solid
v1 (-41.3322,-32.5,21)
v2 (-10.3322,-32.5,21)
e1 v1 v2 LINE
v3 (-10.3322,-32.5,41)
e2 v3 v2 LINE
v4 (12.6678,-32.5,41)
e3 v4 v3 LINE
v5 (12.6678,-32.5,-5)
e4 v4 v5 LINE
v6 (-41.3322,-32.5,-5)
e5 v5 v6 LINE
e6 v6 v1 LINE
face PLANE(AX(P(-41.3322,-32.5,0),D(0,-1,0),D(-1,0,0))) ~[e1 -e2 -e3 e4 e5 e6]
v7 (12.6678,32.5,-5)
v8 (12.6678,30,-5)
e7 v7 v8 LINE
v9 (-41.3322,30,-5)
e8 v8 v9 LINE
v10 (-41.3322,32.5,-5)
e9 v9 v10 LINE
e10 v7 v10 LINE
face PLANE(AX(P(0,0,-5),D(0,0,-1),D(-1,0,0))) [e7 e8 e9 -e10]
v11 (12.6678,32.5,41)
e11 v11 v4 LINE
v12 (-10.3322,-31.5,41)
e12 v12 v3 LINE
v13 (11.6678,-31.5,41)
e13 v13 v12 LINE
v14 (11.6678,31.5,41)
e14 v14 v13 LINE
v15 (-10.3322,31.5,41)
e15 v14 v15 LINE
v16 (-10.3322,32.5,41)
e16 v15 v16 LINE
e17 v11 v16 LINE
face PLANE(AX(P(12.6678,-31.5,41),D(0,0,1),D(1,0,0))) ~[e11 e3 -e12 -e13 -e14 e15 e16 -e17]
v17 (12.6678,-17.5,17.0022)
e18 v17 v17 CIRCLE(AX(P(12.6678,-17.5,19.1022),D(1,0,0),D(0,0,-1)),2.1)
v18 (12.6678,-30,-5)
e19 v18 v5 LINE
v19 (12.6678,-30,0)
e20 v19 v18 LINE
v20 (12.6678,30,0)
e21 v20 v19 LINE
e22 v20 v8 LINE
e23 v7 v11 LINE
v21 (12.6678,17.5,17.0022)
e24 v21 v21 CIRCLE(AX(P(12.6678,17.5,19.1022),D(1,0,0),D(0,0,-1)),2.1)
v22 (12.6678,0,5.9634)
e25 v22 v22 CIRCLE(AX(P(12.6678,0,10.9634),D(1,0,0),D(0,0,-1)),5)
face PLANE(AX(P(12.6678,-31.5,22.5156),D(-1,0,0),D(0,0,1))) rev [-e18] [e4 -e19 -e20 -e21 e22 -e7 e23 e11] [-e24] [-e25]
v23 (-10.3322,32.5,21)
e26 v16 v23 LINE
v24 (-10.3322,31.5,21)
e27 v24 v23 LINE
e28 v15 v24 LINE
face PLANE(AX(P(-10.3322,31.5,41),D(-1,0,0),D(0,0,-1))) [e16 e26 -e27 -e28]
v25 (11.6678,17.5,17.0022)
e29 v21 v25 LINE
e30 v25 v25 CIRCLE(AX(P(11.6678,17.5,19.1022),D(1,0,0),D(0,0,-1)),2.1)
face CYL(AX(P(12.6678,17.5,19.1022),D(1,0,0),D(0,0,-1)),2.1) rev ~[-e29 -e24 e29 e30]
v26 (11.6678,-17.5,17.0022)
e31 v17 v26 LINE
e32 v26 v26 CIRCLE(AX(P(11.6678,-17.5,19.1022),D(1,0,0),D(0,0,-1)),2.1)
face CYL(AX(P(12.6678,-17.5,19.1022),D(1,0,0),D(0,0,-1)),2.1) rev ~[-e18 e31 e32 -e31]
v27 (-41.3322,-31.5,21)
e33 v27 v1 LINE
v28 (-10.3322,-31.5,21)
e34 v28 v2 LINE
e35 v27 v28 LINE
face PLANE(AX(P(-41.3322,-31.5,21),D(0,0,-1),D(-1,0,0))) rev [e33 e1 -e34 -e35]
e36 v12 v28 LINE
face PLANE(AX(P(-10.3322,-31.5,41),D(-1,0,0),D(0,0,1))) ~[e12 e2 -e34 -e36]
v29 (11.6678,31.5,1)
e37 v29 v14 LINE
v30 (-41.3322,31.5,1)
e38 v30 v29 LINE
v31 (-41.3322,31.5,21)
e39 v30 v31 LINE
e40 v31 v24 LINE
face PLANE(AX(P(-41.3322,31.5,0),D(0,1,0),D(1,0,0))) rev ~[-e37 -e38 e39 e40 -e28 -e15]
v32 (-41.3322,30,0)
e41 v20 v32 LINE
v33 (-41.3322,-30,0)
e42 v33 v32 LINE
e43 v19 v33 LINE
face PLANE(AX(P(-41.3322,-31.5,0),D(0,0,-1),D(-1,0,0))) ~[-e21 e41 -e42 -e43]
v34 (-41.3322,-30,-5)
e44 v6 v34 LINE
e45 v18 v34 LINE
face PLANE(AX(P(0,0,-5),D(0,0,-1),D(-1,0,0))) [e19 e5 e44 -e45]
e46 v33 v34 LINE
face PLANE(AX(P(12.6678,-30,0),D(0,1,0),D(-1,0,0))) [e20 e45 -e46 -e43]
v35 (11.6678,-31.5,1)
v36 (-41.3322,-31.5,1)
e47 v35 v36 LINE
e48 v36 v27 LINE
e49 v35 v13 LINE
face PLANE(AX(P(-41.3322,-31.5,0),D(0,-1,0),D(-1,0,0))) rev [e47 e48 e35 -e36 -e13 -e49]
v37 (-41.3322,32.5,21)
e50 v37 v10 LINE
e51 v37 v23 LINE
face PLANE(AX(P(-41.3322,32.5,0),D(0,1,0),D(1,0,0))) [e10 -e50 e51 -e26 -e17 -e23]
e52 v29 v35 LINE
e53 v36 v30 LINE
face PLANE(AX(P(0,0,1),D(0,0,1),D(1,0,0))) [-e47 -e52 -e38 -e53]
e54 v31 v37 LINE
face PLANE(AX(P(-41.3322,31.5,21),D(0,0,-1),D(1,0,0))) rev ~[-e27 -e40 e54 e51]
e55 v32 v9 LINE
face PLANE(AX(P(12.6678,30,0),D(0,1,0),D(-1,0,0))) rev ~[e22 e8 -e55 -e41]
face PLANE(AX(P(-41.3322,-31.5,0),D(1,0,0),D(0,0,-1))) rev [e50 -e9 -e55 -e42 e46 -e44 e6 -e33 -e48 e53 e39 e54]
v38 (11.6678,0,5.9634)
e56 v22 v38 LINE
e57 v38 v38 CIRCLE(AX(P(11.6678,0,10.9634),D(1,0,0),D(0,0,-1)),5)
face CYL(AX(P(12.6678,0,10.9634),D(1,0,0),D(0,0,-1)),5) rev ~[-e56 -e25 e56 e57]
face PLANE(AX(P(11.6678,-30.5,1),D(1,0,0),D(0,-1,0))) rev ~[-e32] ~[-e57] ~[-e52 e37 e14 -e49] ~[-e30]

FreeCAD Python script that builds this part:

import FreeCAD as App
import Part
import Sketcher

V = App.Vector
Q = App.Units.Quantity

doc = App.newDocument("Part")
body = doc.addObject("PartDesign::Body", "Body")

# Sketch on XY plane
sketch1 = body.newObject("Sketcher::SketchObject", "Sketch")
sketch1.AttachmentSupport = (doc.getObject("XY_Plane"), [""])
sketch1.MapMode = "FlatFace"
sketch1.addGeometry([
    Part.LineSegment(V(13, 32, 0), V(-41, 32, 0)),
    Part.LineSegment(V(-41, 32, 0), V(-41, -32, 0)),
    Part.LineSegment(V(-41, -32, 0), V(13, -32, 0)),
    Part.LineSegment(V(13, -32, 0), V(13, 32, 0)),
], False)
sketch1.addConstraint([
    Sketcher.Constraint("Coincident", 0, 2, 1, 1),
    Sketcher.Constraint("Coincident", 1, 2, 2, 1),
    Sketcher.Constraint("Coincident", 2, 2, 3, 1),
    Sketcher.Constraint("Coincident", 3, 2, 0, 1),
    Sketcher.Constraint("Horizontal", 0),
    Sketcher.Constraint("Vertical", 1),
    Sketcher.Constraint("Horizontal", 2),
    Sketcher.Constraint("Vertical", 3),
    Sketcher.Constraint("DistanceX", 0, 2, 0, 1, Q("54 mm")),
    Sketcher.Constraint("DistanceY", 1, 2, 1, 1, Q("63 mm")),
    Sketcher.Constraint("DistanceY", -1, 1, 0, 2, Q("31.5 mm")),
    Sketcher.Constraint("DistanceX", 0, 2, -1, 1, Q("41.3322 mm")),
])
pad1 = body.newObject("PartDesign::Pad", "Pad")
pad1.Profile = sketch1
pad1.Length = 1

# Sketch on XY plane
sketch2 = body.newObject("Sketcher::SketchObject", "Sketch001")
sketch2.AttachmentSupport = (doc.getObject("XY_Plane"), [""])
sketch2.MapMode = "FlatFace"
sketch2.AttachmentOffset = App.Placement(V(0, 0, 1), App.Rotation())
sketch2.addGeometry([
    Part.LineSegment(V(12.7, -31.5, 0), V(12.7, 31.5, 0)),
    Part.LineSegment(V(12.7, 31.5, 0), V(11.7, 31.5, 0)),
    Part.LineSegment(V(11.7, 31.5, 0), V(11.7, -31.5, 0)),
    Part.LineSegment(V(11.7, -31.5, 0), V(12.7, -31.5, 0)),
], False)
sketch2.addConstraint([
    Sketcher.Constraint("Coincident", 0, 2, 1, 1),
    Sketcher.Constraint("Coincident", 1, 2, 2, 1),
    Sketcher.Constraint("Coincident", 2, 2, 3, 1),
    Sketcher.Constraint("Coincident", 3, 2, 0, 1),
    Sketcher.Constraint("Vertical", 0),
    Sketcher.Constraint("Horizontal", 1),
    Sketcher.Constraint("Vertical", 2),
    Sketcher.Constraint("Horizontal", 3),
    Sketcher.Constraint("DistanceX", 1, 2, 1, 1, Q("1 mm")),
    Sketcher.Constraint("DistanceY", 0, 1, 0, 2, Q("63 mm")),
    Sketcher.Constraint("DistanceY", -1, 1, 0, 2, Q("31.5 mm")),
    Sketcher.Constraint("DistanceX", -1, 1, 0, 2, Q("12.6678 mm")),
])
pad2 = body.newObject("PartDesign::Pad", "Pad001")
pad2.Profile = sketch2
pad2.Length = 40

# Sketch on YZ plane
sketch3 = body.newObject("Sketcher::SketchObject", "Sketch002")
sketch3.AttachmentSupport = (doc.getObject("YZ_Plane"), [""])
sketch3.MapMode = "FlatFace"
sketch3.AttachmentOffset = App.Placement(V(0, 0, 12.6678), App.Rotation())
sketch3.addGeometry([
    Part.Circle(V(0, 11, 0), V(0, 0, 1), 5),
    Part.Circle(V(17.5, 19.1, 0), V(0, 0, 1), 2.1),
    Part.Circle(V(-17.5, 19.1, 0), V(0, 0, 1), 2.1),
], False)
sketch3.addConstraint([
    Sketcher.Constraint("Equal", 1, 2),
    Sketcher.Constraint("Symmetric", 1, 3, 2, 3, -2),
    Sketcher.Constraint("PointOnObject", 0, 3, -2),
    Sketcher.Constraint("Diameter", 0, Q("10 mm")),
    Sketcher.Constraint("Diameter", 1, Q("4.2 mm")),
    Sketcher.Constraint("DistanceX", 2, 3, 1, 3, Q("35 mm")),
    Sketcher.Constraint("DistanceY", -1, 1, 0, 3, Q("10.9634 mm")),
    Sketcher.Constraint("DistanceY", -1, 1, 1, 3, Q("19.1022 mm")),
])
pocket1 = body.newObject("PartDesign::Pocket", "Pocket")
pocket1.Profile = sketch3
pocket1.Type = "UpToFirst"

# Sketch on XZ plane
sketch4 = body.newObject("Sketcher::SketchObject", "Sketch003")
sketch4.AttachmentSupport = (doc.getObject("XZ_Plane"), [""])
sketch4.MapMode = "FlatFace"
sketch4.AttachmentOffset = App.Placement(V(0, 0, -31.5), App.Rotation())
sketch4.addGeometry([
    Part.LineSegment(V(13, 0, 0), V(-41, 0, 0)),  # 0
    Part.LineSegment(V(-41, 0, 0), V(-41, 21, 0)),  # 1
    Part.LineSegment(V(-41, 21, 0), V(-10, 21, 0)),  # 2
    Part.LineSegment(V(-10, 21, 0), V(-10, 41, 0)),  # 3
    Part.LineSegment(V(-10, 41, 0), V(13, 41, 0)),  # 4
    Part.LineSegment(V(13, 41, 0), V(13, 0, 0)),  # 5
], False)
sketch4.addConstraint([
    Sketcher.Constraint("Coincident", 0, 2, 1, 1),
    Sketcher.Constraint("Coincident", 1, 2, 2, 1),
    Sketcher.Constraint("Coincident", 2, 2, 3, 1),
    Sketcher.Constraint("Coincident", 3, 2, 4, 1),
    Sketcher.Constraint("Coincident", 4, 2, 5, 1),
    Sketcher.Constraint("Coincident", 5, 2, 0, 1),
    Sketcher.Constraint("Horizontal", 0),
    Sketcher.Constraint("Vertical", 1),
    Sketcher.Constraint("Horizontal", 2),
    Sketcher.Constraint("Vertical", 3),
    Sketcher.Constraint("Horizontal", 4),
    Sketcher.Constraint("Vertical", 5),
    Sketcher.Constraint("PointOnObject", 0, 2, -1),
    Sketcher.Constraint("DistanceX", 4, 1, 4, 2, Q("23 mm")),
    Sketcher.Constraint("DistanceY", 3, 1, 3, 2, Q("20 mm")),
    Sketcher.Constraint("DistanceX", 0, 2, 0, 1, Q("54 mm")),
    Sketcher.Constraint("DistanceY", 1, 1, 1, 2, Q("21 mm")),
    Sketcher.Constraint("DistanceX", 0, 2, -1, 1, Q("41.3322 mm")),
])
pad3 = body.newObject("PartDesign::Pad", "Pad002")
pad3.Profile = sketch4
pad3.Length = 1
pad3.Reversed = True
doc.recompute()

mirrored = body.newObject("PartDesign::Mirrored", "Mirrored")
mirrored.Originals = [pad3]
mirrored.MirrorPlane = (doc.getObject("XZ_Plane"), [""])
body.Tip = mirrored

# Sketch on XY plane
sketch5 = body.newObject("Sketcher::SketchObject", "Sketch004")
sketch5.AttachmentSupport = (doc.getObject("XY_Plane"), [""])
sketch5.MapMode = "FlatFace"
sketch5.addGeometry([
    Part.LineSegment(V(12.7, 32.5, 0), V(12.7, 30, 0)),  # 0
    Part.LineSegment(V(12.7, 30, 0), V(-41.3, 30, 0)),  # 1
    Part.LineSegment(V(-41.3, 30, 0), V(-41.3, 32.5, 0)),  # 2
    Part.LineSegment(V(-41.3, 32.5, 0), V(12.7, 32.5, 0)),  # 3
    Part.LineSegment(V(-41.3, -30, 0), V(12.7, -30, 0)),  # 4
    Part.LineSegment(V(12.7, -30, 0), V(12.7, -32.5, 0)),  # 5
    Part.LineSegment(V(12.7, -32.5, 0), V(-41.3, -32.5, 0)),  # 6
    Part.LineSegment(V(-41.3, -32.5, 0), V(-41.3, -30, 0)),  # 7
], False)
sketch5.addConstraint([
    Sketcher.Constraint("Coincident", 0, 2, 1, 1),
    Sketcher.Constraint("Coincident", 1, 2, 2, 1),
    Sketcher.Constraint("Coincident", 2, 2, 3, 1),
    Sketcher.Constraint("Coincident", 3, 2, 0, 1),
    Sketcher.Constraint("Coincident", 4, 2, 5, 1),
    Sketcher.Constraint("Coincident", 5, 2, 6, 1),
    Sketcher.Constraint("Coincident", 6, 2, 7, 1),
    Sketcher.Constraint("Coincident", 7, 2, 4, 1),
    Sketcher.Constraint("Vertical", 0),
    Sketcher.Constraint("Horizontal", 1),
    Sketcher.Constraint("Vertical", 2),
    Sketcher.Constraint("Horizontal", 3),
    Sketcher.Constraint("Horizontal", 4),
    Sketcher.Constraint("Vertical", 5),
    Sketcher.Constraint("Horizontal", 6),
    Sketcher.Constraint("Vertical", 7),
    Sketcher.Constraint("Symmetric", 0, 2, 4, 2, -1),
    Sketcher.Constraint("Symmetric", 2, 2, 6, 2, -1),
    Sketcher.Constraint("DistanceY", 4, 2, 0, 2, Q("60 mm")),
    Sketcher.Constraint("DistanceX", 1, 2, 1, 1, Q("54 mm")),
    Sketcher.Constraint("DistanceY", 0, 2, 0, 1, Q("2.5 mm")),
    Sketcher.Constraint("DistanceX", -1, 1, 0, 2, Q("12.6678 mm")),
])
pad4 = body.newObject("PartDesign::Pad", "Pad003")
pad4.Profile = sketch5
pad4.Length = 5
pad4.Reversed = True

doc.recompute()
